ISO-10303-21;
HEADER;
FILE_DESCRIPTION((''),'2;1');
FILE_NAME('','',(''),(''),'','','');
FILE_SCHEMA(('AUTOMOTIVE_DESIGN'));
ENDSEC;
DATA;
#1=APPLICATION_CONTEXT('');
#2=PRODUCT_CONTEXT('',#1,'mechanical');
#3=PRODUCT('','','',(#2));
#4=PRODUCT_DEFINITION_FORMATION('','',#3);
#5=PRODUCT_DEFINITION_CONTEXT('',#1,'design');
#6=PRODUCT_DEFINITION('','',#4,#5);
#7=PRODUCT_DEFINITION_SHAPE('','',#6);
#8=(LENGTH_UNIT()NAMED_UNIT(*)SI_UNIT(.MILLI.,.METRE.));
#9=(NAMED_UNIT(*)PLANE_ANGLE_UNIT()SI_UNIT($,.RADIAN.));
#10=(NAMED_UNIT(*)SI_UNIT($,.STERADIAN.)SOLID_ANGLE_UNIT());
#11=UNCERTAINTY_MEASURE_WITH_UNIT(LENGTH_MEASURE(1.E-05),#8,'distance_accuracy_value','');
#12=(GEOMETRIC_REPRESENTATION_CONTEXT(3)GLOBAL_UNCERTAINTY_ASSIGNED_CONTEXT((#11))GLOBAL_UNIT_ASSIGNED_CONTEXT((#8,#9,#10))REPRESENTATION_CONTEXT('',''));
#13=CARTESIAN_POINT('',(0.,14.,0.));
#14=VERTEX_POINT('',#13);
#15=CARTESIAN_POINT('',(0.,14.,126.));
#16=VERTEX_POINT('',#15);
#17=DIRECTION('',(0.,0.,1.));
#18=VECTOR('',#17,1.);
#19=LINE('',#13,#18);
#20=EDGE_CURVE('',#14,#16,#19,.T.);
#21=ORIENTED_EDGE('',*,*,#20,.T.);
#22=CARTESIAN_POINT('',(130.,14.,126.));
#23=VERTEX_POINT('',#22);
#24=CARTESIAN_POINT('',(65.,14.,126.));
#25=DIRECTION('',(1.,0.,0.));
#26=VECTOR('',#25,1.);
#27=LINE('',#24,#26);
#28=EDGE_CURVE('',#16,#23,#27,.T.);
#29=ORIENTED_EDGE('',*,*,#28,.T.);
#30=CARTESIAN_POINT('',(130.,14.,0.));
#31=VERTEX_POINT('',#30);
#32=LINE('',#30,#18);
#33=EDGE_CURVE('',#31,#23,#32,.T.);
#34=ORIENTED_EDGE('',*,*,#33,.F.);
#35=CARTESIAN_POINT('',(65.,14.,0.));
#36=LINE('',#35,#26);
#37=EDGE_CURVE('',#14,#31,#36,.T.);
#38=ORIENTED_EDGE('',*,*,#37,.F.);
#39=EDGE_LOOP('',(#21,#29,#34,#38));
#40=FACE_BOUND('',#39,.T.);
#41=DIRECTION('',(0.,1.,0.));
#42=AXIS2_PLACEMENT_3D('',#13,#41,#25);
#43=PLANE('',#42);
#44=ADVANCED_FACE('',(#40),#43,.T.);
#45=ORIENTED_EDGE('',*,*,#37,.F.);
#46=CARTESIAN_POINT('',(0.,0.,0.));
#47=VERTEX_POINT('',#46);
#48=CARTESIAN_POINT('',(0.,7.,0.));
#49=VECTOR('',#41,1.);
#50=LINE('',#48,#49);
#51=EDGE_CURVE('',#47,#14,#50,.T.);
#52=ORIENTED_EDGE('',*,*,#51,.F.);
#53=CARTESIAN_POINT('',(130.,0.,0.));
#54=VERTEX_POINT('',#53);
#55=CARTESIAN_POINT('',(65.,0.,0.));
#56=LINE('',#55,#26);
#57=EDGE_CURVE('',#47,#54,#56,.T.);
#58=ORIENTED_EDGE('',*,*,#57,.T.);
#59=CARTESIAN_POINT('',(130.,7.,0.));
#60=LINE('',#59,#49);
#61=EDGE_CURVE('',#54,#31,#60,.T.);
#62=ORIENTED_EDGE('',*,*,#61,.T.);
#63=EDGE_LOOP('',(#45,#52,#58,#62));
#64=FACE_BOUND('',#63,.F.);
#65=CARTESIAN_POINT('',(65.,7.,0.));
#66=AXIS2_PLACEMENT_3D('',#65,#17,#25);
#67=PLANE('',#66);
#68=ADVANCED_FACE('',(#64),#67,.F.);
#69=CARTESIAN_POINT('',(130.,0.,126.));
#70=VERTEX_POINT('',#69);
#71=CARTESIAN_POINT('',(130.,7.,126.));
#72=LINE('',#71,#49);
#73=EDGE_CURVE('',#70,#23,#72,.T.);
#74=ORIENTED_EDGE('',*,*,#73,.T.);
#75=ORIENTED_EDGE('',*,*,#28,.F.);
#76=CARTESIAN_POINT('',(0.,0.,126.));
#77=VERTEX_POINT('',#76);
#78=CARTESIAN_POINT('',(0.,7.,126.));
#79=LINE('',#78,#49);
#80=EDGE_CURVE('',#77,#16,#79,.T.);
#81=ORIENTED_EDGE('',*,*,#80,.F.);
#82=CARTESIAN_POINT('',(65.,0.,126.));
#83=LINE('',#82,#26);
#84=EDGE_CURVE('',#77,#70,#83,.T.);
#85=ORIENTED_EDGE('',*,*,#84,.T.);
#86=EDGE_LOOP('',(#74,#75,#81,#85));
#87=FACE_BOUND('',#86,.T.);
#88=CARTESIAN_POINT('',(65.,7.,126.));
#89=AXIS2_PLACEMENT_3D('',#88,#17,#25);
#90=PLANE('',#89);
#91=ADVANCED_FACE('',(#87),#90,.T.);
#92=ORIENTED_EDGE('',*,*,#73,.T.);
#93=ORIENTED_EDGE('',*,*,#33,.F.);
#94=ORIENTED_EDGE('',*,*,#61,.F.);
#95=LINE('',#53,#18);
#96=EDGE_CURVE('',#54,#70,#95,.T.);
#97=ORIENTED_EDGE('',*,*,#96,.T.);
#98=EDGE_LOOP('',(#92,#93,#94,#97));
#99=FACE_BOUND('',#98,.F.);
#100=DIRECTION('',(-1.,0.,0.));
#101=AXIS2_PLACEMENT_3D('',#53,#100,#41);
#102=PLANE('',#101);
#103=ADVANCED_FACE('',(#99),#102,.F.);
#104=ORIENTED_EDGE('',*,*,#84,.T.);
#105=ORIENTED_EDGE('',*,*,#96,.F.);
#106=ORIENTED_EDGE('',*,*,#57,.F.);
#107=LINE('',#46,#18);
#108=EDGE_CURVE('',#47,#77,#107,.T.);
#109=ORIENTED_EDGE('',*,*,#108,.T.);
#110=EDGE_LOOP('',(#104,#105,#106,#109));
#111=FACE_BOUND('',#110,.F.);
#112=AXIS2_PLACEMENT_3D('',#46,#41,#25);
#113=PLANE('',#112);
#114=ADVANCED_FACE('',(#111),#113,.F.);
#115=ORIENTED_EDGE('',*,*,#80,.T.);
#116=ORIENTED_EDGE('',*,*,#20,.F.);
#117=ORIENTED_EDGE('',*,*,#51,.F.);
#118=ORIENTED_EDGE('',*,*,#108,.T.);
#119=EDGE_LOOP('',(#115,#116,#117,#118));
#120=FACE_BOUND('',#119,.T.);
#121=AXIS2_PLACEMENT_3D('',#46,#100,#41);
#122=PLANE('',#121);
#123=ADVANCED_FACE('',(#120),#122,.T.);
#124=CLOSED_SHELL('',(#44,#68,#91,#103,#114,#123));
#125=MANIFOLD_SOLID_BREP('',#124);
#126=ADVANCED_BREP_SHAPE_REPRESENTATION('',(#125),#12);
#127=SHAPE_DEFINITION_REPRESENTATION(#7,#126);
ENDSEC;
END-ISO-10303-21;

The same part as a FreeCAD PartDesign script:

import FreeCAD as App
import Part
import Sketcher

doc = App.newDocument("Part")
body = doc.addObject("PartDesign::Body", "Body")

sketch1 = body.newObject("Sketcher::SketchObject", "Sketch")
sketch1.AttachmentSupport = (doc.getObject("XY_Plane"), [""])
sketch1.MapMode = "FlatFace"
sketch1.addGeometry([
    Part.LineSegment(App.Vector(0, 14, 0), App.Vector(0, 0, 0)),
    Part.LineSegment(App.Vector(0, 0, 0), App.Vector(130, 0, 0)),
    Part.LineSegment(App.Vector(130, 0, 0), App.Vector(130, 14, 0)),
    Part.LineSegment(App.Vector(130, 14, 0), App.Vector(0, 14, 0)),
], False)
sketch1.addConstraint([
    Sketcher.Constraint("Coincident", 0, 2, 1, 1),
    Sketcher.Constraint("Coincident", 1, 2, 2, 1),
    Sketcher.Constraint("Coincident", 2, 2, 3, 1),
    Sketcher.Constraint("Coincident", 3, 2, 0, 1),
    Sketcher.Constraint("Vertical", 0),
    Sketcher.Constraint("Horizontal", 1),
    Sketcher.Constraint("Vertical", 2),
    Sketcher.Constraint("Horizontal", 3),
    Sketcher.Constraint("Coincident", 0, 2, -1, 1),
    Sketcher.Constraint("DistanceX", 1, 1, 1, 2, 130.0),
    Sketcher.Constraint("DistanceY", 0, 2, 0, 1, 14.0),
])
pad1 = body.newObject("PartDesign::Pad", "Pad")
pad1.Profile = sketch1
pad1.Length = 126

doc.recompute()
